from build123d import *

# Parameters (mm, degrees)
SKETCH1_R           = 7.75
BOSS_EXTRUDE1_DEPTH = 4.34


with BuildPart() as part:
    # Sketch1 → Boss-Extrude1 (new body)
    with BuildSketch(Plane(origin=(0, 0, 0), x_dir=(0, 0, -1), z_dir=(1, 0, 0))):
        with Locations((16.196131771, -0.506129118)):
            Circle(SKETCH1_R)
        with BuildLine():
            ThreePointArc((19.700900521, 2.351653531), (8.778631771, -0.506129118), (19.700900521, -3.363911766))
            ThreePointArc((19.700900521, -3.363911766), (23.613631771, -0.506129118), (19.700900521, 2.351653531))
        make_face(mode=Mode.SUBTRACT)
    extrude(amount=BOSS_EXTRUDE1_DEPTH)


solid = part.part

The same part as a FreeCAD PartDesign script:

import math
import FreeCAD as App
import Part
import Sketcher

V = App.Vector
Q = App.Units.Quantity

doc = App.newDocument("Part")
body = doc.addObject("PartDesign::Body", "Body")

# Sketch on YZ plane
sketch1 = body.newObject("Sketcher::SketchObject", "Sketch")
sketch1.AttachmentSupport = (doc.getObject("YZ_Plane"), [""])
sketch1.MapMode = "FlatFace"
sketch1.addGeometry(Part.Circle(V(-0.5, -16.2, 0), V(0, 0, 1), 7.8), False)
sketch1.addGeometry(Part.ArcOfCircle(Part.Circle(V(-0.5, -14.6, 0), V(0, 0, 1), 5.8), math.radians(-61), math.radians(241)), False)
sketch1.addGeometry(Part.ArcOfCircle(Part.Circle(V(-0.5, -20.6, 0), V(0, 0, 1), 3), math.radians(162), math.radians(378)), False)
sketch1.addConstraint(Sketcher.Constraint("Coincident", 1, 1, 2, 2))
sketch1.addConstraint(Sketcher.Constraint("Coincident", 2, 1, 1, 2))
sketch1.addConstraint(Sketcher.Constraint("Horizontal", 1, 1, 2, 1))
sketch1.addConstraint(Sketcher.Constraint("Vertical", 0, 3, 1, 3))
sketch1.addConstraint(Sketcher.Constraint("Radius", 2, Q("3 mm")))
sketch1.addConstraint(Sketcher.Constraint("Diameter", 0, Q("15.5 mm")))
sketch1.addConstraint(Sketcher.Constraint("Radius", 1, Q("5.835 mm")))
sketch1.addConstraint(Sketcher.Constraint("DistanceY", 2, 3, 1, 3, Q("6 mm")))
sketch1.addConstraint(Sketcher.Constraint("DistanceY", 1, 1, -1, 1, Q("19.700901 mm")))
sketch1.addConstraint(Sketcher.Constraint("DistanceY", 0, 3, 1, 3, Q("1.5825 mm")))
sketch1.addConstraint(Sketcher.Constraint("DistanceX", 0, 3, -1, 1, Q("0.506129 mm")))
pad1 = body.newObject("PartDesign::Pad", "Pad")
pad1.Profile = sketch1
pad1.Length = 4.34

doc.recompute()
